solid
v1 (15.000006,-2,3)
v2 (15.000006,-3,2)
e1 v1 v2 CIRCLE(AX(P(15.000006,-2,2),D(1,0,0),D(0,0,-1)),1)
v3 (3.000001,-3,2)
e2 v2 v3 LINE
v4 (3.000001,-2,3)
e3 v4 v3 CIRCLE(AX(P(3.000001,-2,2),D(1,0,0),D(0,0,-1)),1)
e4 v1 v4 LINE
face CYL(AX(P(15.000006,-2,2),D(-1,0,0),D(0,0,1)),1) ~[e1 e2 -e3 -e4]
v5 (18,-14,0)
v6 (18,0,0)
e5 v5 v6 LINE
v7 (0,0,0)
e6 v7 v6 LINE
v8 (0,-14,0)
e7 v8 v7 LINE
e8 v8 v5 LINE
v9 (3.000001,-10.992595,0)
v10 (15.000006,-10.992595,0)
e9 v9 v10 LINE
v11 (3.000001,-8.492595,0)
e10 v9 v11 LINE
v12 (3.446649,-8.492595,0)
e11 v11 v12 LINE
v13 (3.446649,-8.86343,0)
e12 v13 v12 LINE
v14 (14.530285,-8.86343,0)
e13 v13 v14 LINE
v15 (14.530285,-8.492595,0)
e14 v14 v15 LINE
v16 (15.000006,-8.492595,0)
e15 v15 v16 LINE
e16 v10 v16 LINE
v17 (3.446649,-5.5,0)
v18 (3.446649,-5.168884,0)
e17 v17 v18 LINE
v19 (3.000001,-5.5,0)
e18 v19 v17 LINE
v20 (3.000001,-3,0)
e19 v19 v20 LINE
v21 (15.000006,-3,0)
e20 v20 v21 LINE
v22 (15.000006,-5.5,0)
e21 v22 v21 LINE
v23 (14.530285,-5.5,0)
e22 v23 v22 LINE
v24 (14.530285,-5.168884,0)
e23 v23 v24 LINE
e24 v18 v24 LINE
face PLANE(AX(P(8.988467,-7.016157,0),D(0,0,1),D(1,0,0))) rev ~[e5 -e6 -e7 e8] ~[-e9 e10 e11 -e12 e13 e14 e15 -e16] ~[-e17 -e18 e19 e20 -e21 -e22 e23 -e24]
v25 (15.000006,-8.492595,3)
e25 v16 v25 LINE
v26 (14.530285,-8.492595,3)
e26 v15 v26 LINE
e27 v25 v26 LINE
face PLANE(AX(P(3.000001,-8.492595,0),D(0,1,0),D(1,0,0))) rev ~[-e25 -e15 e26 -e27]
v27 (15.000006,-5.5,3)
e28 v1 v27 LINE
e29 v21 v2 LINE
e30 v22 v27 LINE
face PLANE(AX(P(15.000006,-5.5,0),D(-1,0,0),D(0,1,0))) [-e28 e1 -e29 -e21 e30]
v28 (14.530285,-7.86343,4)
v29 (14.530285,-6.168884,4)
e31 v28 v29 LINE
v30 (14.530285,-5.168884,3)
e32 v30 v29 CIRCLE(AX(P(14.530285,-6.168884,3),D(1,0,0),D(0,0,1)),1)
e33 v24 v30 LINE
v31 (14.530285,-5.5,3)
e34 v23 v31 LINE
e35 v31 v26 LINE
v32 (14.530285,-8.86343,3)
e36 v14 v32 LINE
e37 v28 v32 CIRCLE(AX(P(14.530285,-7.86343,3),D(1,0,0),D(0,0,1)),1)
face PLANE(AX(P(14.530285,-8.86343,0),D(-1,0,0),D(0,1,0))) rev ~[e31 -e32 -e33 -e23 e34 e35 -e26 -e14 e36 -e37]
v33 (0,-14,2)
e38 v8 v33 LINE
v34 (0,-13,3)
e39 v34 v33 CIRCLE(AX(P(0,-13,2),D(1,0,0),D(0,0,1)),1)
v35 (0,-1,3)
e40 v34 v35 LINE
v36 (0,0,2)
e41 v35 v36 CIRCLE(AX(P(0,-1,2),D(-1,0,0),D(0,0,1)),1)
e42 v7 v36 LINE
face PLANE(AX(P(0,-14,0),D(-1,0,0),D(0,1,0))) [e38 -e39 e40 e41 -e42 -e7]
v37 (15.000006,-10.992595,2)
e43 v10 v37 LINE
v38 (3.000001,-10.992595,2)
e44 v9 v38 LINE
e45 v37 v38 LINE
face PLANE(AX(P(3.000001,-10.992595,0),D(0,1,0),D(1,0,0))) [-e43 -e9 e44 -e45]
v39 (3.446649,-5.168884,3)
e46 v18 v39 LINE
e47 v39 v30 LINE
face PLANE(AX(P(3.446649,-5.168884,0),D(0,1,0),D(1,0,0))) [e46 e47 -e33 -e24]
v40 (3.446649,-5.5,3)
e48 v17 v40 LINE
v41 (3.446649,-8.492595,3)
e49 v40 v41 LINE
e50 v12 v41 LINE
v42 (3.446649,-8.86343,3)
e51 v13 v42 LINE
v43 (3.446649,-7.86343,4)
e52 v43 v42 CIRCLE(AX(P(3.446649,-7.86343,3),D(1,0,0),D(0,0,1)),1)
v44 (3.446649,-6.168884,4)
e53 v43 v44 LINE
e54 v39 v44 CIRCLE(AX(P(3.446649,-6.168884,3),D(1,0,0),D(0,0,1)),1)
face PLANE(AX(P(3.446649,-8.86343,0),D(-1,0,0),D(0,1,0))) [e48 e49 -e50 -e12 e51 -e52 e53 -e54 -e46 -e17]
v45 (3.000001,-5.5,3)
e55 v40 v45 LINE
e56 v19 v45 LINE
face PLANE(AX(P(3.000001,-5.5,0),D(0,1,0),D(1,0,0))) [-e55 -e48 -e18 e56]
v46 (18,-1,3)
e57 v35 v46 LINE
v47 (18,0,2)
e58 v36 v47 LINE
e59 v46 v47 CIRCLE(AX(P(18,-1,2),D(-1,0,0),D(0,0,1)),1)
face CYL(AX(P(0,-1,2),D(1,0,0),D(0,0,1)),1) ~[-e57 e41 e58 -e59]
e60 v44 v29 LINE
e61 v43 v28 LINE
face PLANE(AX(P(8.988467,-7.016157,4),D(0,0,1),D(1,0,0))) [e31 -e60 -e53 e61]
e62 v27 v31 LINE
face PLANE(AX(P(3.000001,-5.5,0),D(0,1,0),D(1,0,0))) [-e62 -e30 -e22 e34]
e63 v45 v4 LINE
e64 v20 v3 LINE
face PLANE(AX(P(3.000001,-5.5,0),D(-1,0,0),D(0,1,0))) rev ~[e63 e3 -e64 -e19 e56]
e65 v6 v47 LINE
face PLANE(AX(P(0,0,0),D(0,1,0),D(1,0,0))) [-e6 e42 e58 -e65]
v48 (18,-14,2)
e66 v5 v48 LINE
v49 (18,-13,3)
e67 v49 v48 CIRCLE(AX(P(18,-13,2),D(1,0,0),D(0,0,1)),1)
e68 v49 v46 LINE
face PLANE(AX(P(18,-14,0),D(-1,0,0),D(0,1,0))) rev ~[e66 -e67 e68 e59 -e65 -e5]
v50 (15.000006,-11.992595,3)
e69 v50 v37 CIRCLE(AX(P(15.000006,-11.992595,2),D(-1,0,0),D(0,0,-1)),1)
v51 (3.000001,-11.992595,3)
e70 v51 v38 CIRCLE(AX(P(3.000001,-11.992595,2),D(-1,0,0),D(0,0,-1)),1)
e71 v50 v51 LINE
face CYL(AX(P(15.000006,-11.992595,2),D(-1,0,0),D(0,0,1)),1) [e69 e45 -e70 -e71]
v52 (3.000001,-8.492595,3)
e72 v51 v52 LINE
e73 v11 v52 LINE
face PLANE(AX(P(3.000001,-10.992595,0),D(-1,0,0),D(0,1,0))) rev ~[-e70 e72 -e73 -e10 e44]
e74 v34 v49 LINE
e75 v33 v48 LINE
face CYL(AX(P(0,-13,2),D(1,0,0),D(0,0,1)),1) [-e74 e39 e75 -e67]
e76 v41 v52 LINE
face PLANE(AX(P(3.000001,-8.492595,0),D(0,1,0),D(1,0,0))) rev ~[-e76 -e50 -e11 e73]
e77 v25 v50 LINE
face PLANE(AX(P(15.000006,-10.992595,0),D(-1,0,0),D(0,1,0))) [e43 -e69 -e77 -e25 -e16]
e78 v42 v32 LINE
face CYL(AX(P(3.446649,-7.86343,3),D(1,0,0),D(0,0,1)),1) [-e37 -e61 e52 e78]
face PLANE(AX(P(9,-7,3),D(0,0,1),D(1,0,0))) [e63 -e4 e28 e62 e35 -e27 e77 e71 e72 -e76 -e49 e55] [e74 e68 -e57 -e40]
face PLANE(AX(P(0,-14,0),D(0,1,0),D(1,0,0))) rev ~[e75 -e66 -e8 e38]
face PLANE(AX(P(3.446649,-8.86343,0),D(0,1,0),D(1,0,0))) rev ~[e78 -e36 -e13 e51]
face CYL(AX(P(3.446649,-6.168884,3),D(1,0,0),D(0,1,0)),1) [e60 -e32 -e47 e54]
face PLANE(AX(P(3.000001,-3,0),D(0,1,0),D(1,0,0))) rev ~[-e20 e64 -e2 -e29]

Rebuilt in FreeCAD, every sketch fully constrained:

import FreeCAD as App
import Part
import Sketcher


def edges_at(feature, points):
    """Names of the edges that pass closest to the given points."""
    edges = feature.Shape.Edges
    near = lambda p: min(range(len(edges)), key=lambda i: edges[i].distToShape(Part.Vertex(*p))[0])
    return sorted({f"Edge{near(p) + 1}" for p in points})


def add_polygon(sketch, points):
    """Adds a closed chain of lines whose ends are joined by coincident constraints."""
    first, n = sketch.GeometryCount, len(points)
    for a, b in zip(points, points[1:] + points[:1]):
        sketch.addGeometry(Part.LineSegment(App.Vector(*a, 0), App.Vector(*b, 0)), False)
    for i in range(n):
        sketch.addConstraint(Sketcher.Constraint("Coincident", first + i, 2, first + (i + 1) % n, 1))

doc = App.newDocument("Part")
body = doc.addObject("PartDesign::Body", "Body")

# Sketch on XY plane
sketch1 = body.newObject("Sketcher::SketchObject", "Sketch")
sketch1.AttachmentSupport = (doc.getObject("XY_Plane"), [""])
sketch1.MapMode = "FlatFace"
add_polygon(sketch1, [(0, 0), (0, -14), (18, -14), (18, 0)])  # lines 0-3
sketch1.addConstraint([
    Sketcher.Constraint("Vertical", 0),
    Sketcher.Constraint("Horizontal", 1),
    Sketcher.Constraint("Vertical", 2),
    Sketcher.Constraint("Horizontal", 3),
    Sketcher.Constraint("Coincident", 3, 2, -1, 1),
    Sketcher.Constraint("DistanceX", 1, 1, 1, 2, 18.0),
    Sketcher.Constraint("DistanceY", 0, 2, 0, 1, 14.0),
])
pad1 = body.newObject("PartDesign::Pad", "Pad")
pad1.Profile = sketch1
pad1.Length = 3

# Sketch on XY plane
sketch2 = body.newObject("Sketcher::SketchObject", "Sketch001")
sketch2.AttachmentSupport = (doc.getObject("XY_Plane"), [""])
sketch2.MapMode = "FlatFace"
add_polygon(sketch2, [(3, -3), (3, -5.5), (15, -5.5), (15, -3)])  # lines 0-3
add_polygon(sketch2, [(3, -8.5), (3, -11), (15, -11), (15, -8.5)])  # lines 4-7
sketch2.addConstraint([
    Sketcher.Constraint("Vertical", 0),
    Sketcher.Constraint("Horizontal", 1),
    Sketcher.Constraint("Vertical", 2),
    Sketcher.Constraint("Horizontal", 3),
    Sketcher.Constraint("Vertical", 4),
    Sketcher.Constraint("Horizontal", 5),
    Sketcher.Constraint("Vertical", 6),
    Sketcher.Constraint("Horizontal", 7),
    Sketcher.Constraint("Vertical", 3, 2, 4, 2),
    Sketcher.Constraint("Vertical", 2, 2, 5, 2),
    Sketcher.Constraint("Equal", 2, 4),
    Sketcher.Constraint("DistanceY", 0, 2, 0, 1, 2.5),
    Sketcher.Constraint("DistanceX", -1, 1, 0, 2, 3.000001),
    Sketcher.Constraint("DistanceY", 2, 2, -1, 1, 3.0),
    Sketcher.Constraint("DistanceX", 1, 1, 1, 2, 12.000005),
    Sketcher.Constraint("DistanceY", 4, 2, -1, 1, 10.992595),
])
pocket1 = body.newObject("PartDesign::Pocket", "Pocket")
pocket1.Profile = sketch2
pocket1.Length = 25
pocket1.Reversed = True

# Sketch on XY plane
sketch3 = body.newObject("Sketcher::SketchObject", "Sketch002")
sketch3.AttachmentSupport = (doc.getObject("XY_Plane"), [""])
sketch3.MapMode = "FlatFace"
add_polygon(sketch3, [(3.4, -5.2), (3.4, -8.9), (14.5, -8.9), (14.5, -5.2)])  # lines 0-3
sketch3.addConstraint([
    Sketcher.Constraint("Vertical", 0),
    Sketcher.Constraint("Horizontal", 1),
    Sketcher.Constraint("Vertical", 2),
    Sketcher.Constraint("Horizontal", 3),
    Sketcher.Constraint("DistanceX", 1, 1, 1, 2, 11.083636),
    Sketcher.Constraint("DistanceY", 0, 2, 0, 1, 3.694546),
    Sketcher.Constraint("DistanceX", -1, 1, 0, 2, 3.446649),
    Sketcher.Constraint("DistanceY", 0, 2, -1, 1, 8.86343),
])
pad2 = body.newObject("PartDesign::Pad", "Pad001")
pad2.Profile = sketch3
pad2.Length = 4
doc.recompute()

fillet = body.newObject("PartDesign::Fillet", "Fillet")
fillet.Base = (pad2, edges_at(pad2, [
    (8.988, -8.863, 4),
    (8.988, -5.169, 4),
    (9, -3, 3),
    (9, -10.993, 3),
    (9, -14, 3),
    (9, 0, 3),
]))
fillet.Radius = 1

doc.recompute()
